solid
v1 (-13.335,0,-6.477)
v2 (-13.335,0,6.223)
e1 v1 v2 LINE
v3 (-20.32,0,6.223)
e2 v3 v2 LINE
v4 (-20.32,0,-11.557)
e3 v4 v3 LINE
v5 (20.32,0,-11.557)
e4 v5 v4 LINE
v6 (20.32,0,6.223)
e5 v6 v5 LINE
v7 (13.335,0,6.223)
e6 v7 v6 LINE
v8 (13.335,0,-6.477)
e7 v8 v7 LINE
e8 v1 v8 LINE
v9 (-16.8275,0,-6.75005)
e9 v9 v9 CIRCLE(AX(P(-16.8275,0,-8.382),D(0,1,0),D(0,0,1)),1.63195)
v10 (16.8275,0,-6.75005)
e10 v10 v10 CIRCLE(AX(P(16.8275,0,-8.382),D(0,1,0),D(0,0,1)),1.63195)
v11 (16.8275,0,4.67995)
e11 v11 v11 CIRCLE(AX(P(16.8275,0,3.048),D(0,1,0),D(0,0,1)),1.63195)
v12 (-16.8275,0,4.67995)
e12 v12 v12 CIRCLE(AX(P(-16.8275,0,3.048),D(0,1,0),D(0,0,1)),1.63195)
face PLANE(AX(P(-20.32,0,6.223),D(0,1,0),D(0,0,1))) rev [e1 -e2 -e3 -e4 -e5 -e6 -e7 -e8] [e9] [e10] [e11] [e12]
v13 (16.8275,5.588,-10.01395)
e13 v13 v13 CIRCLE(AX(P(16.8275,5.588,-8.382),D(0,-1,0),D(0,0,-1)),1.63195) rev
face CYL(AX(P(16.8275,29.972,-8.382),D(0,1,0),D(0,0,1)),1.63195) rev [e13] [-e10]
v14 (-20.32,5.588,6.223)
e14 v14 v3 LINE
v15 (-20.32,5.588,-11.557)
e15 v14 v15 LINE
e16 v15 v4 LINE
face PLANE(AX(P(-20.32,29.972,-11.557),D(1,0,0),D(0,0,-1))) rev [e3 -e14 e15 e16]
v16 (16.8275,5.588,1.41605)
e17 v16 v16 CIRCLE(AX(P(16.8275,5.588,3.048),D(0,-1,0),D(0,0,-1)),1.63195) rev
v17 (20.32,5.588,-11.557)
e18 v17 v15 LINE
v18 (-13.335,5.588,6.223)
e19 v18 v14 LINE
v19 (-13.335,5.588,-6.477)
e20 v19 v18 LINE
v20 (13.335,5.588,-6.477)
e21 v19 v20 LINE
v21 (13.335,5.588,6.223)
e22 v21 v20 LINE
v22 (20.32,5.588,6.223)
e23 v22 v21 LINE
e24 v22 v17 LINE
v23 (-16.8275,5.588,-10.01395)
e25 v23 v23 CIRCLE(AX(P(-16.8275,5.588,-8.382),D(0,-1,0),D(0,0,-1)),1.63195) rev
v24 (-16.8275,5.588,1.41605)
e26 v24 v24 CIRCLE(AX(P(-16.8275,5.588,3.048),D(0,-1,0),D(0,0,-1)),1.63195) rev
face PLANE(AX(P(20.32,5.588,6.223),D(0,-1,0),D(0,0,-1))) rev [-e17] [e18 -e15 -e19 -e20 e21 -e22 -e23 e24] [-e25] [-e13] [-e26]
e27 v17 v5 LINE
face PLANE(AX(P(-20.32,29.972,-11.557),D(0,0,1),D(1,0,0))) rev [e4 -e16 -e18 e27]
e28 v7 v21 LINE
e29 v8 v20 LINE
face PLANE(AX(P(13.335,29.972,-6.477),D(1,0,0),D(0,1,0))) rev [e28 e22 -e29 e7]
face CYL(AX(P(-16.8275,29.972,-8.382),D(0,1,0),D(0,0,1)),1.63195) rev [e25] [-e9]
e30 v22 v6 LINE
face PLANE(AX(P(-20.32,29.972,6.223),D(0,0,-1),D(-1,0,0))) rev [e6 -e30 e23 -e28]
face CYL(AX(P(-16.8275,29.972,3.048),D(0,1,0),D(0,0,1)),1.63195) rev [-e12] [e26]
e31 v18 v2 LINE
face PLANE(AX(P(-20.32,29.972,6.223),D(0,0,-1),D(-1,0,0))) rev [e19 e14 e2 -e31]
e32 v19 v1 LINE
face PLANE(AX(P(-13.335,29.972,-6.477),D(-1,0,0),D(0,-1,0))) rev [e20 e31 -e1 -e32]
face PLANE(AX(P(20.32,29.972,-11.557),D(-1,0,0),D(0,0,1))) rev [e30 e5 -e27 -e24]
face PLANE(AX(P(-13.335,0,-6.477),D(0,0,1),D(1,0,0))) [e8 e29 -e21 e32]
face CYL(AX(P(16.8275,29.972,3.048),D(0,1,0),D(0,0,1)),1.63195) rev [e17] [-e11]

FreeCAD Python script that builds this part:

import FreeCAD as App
import Part
import Sketcher
Q = App.Units.Quantity


def add_polygon(sketch, points):
    """Adds a closed chain of lines whose ends are joined by coincident constraints."""
    first, n = sketch.GeometryCount, len(points)
    for a, b in zip(points, points[1:] + points[:1]):
        sketch.addGeometry(Part.LineSegment(App.Vector(*a, 0), App.Vector(*b, 0)), False)
    for i in range(n):
        sketch.addConstraint(Sketcher.Constraint("Coincident", first + i, 2, first + (i + 1) % n, 1))

doc = App.newDocument("Part")
body = doc.addObject("PartDesign::Body", "Body")

# Sketch on XZ plane
sketch1 = doc.addObject("Sketcher::SketchObject", "Sketch")
body.addObject(sketch1)
sketch1.AttachmentSupport = (doc.XZ_Plane, [""])
sketch1.MapMode = "FlatFace"
add_polygon(sketch1, [(-20.32, -11.557), (-20.32, 6.223), (20.32, 6.223), (20.32, -11.557)])  # lines 0-3
sketch1.addConstraint([
    Sketcher.Constraint("Vertical", 0),
    Sketcher.Constraint("Horizontal", 1),
    Sketcher.Constraint("Vertical", 2),
    Sketcher.Constraint("Horizontal", 3),
    Sketcher.Constraint("DistanceX", 1, 1, 1, 2, Q("1.6 in")),
    Sketcher.Constraint("DistanceY", 0, 1, 0, 2, Q("0.7 in")),
    Sketcher.Constraint("DistanceX", 0, 2, -1, 1, Q("0.8 in")),
    Sketcher.Constraint("DistanceY", -1, 1, 0, 2, Q("0.245 in")),
])
pad1 = doc.addObject("PartDesign::Pad", "Pad")
body.addObject(pad1)
pad1.Profile = sketch1
pad1.Length = Q("1.18 in")
pad1.Reversed = True

# Sketch on XY plane
sketch2 = doc.addObject("Sketcher::SketchObject", "Sketch001")
body.addObject(sketch2)
sketch2.AttachmentSupport = (doc.XY_Plane, [""])
sketch2.MapMode = "FlatFace"
sketch2.AttachmentOffset = App.Placement(App.Vector(0, 0, 0.245 * 25.4), App.Rotation())
add_polygon(sketch2, [(-13.335, 29.972), (-13.335, 0), (13.335, 0), (13.335, 29.972)])  # lines 0-3
sketch2.addConstraint([
    Sketcher.Constraint("Vertical", 0),
    Sketcher.Constraint("Horizontal", 1),
    Sketcher.Constraint("Vertical", 2),
    Sketcher.Constraint("Horizontal", 3),
    Sketcher.Constraint("Symmetric", 0, 2, 1, 2, -1, 1),
    Sketcher.Constraint("DistanceX", 1, 1, 1, 2, Q("1.05 in")),
    Sketcher.Constraint("DistanceY", 0, 2, 0, 1, Q("1.18 in")),
])
pocket1 = doc.addObject("PartDesign::Pocket", "Pocket")
body.addObject(pocket1)
pocket1.Profile = sketch2
pocket1.Length = Q("0.5 in")

# Sketch on XY plane
sketch3 = doc.addObject("Sketcher::SketchObject", "Sketch002")
body.addObject(sketch3)
sketch3.AttachmentSupport = (doc.XY_Plane, [""])
sketch3.MapMode = "FlatFace"
sketch3.AttachmentOffset = App.Placement(App.Vector(0, 0, -0.455 * 25.4), App.Rotation())
sketch3.addGeometry(Part.Circle(App.Vector(0, 15.875, 0), App.Vector(0, 0, 1), 8.001), False)
sketch3.addConstraint([
    Sketcher.Constraint("PointOnObject", 0, 3, -2),
    Sketcher.Constraint("Diameter", 0, Q("0.63 in")),
    Sketcher.Constraint("DistanceY", -1, 1, 0, 3, Q("0.625 in")),
])
pocket2 = doc.addObject("PartDesign::Pocket", "Pocket001")
body.addObject(pocket2)
pocket2.Profile = sketch3
pocket2.Type = "ThroughAll"
pocket2.Reversed = True

# Sketch on YZ plane
sketch4 = doc.addObject("Sketcher::SketchObject", "Sketch003")
body.addObject(sketch4)
sketch4.AttachmentSupport = (doc.YZ_Plane, [""])
sketch4.MapMode = "FlatFace"
sketch4.AttachmentOffset = App.Placement(App.Vector(0, 0, -0.8 * 25.4), App.Rotation())
sketch4.addGeometry(Part.Circle(App.Vector(15.24, -2.667, 0), App.Vector(0, 0, 1), 1.1303), False)
sketch4.addConstraint([
    Sketcher.Constraint("Diameter", 0, Q("0.089 in")),
    Sketcher.Constraint("DistanceX", -1, 1, 0, 3, Q("0.6 in")),
    Sketcher.Constraint("DistanceY", 0, 3, -1, 1, Q("0.105 in")),
])
pocket3 = doc.addObject("PartDesign::Pocket", "Pocket002")
body.addObject(pocket3)
pocket3.Profile = sketch4
pocket3.Type = "ThroughAll"
pocket3.Reversed = True

# Sketch on XY plane
sketch5 = doc.addObject("Sketcher::SketchObject", "Sketch004")
body.addObject(sketch5)
sketch5.AttachmentSupport = (doc.XY_Plane, [""])
sketch5.MapMode = "FlatFace"
sketch5.AttachmentOffset = App.Placement(App.Vector(0, 0, -0.255 * 25.4), App.Rotation())
add_polygon(sketch5, [(-9.950165, 29.981521), (-9.950165, 25.404966), (9.950165, 25.404966), (9.950165, 29.981521)])  # lines 0-3
sketch5.addConstraint([
    Sketcher.Constraint("Vertical", 0),
    Sketcher.Constraint("Horizontal", 1),
    Sketcher.Constraint("Vertical", 2),
    Sketcher.Constraint("Horizontal", 3),
    Sketcher.Constraint("DistanceX", 1, 1, 1, 2, Q("19.90033 mm")),
    Sketcher.Constraint("DistanceY", 0, 2, 0, 1, Q("4.576555 mm")),
    Sketcher.Constraint("DistanceY", -1, 1, 2, 2, Q("29.981521 mm")),
    Sketcher.Constraint("DistanceX", 0, 2, -1, 1, Q("9.950165 mm")),
])
pad2 = doc.addObject("PartDesign::Pad", "Pad001")
body.addObject(pad2)
pad2.Profile = sketch5
pad2.Length = Q("0.2 in")

# Sketch on XY plane
sketch6 = doc.addObject("Sketcher::SketchObject", "Sketch005")
body.addObject(sketch6)
sketch6.AttachmentSupport = (doc.XY_Plane, [""])
sketch6.MapMode = "FlatFace"
sketch6.AttachmentOffset = App.Placement(App.Vector(0, 0, -0.455 * 25.4), App.Rotation())
sketch6.addGeometry([
    Part.Circle(App.Vector(10.16, 21.717, 0), App.Vector(0, 0, 1), 1.984375),
    Part.Circle(App.Vector(10.16, 10.033, 0), App.Vector(0, 0, 1), 1.984375),
    Part.Circle(App.Vector(-10.16, 21.717, 0), App.Vector(0, 0, 1), 1.984375),
    Part.Circle(App.Vector(-10.16, 10.033, 0), App.Vector(0, 0, 1), 1.984375),
], False)
sketch6.addConstraint([
    Sketcher.Constraint("Equal", 0, 1),
    Sketcher.Constraint("Equal", 1, 2),
    Sketcher.Constraint("Equal", 2, 3),
    Sketcher.Constraint("Symmetric", 0, 3, 2, 3, -2),
    Sketcher.Constraint("Symmetric", 1, 3, 3, 3, -2),
    Sketcher.Constraint("Vertical", 0, 3, 1, 3),
    Sketcher.Constraint("Diameter", 0, Q("0.15625 in")),
    Sketcher.Constraint("DistanceX", -1, 1, 0, 3, Q("0.4 in")),
    Sketcher.Constraint("DistanceY", 1, 3, 0, 3, Q("0.46 in")),
    Sketcher.Constraint("DistanceY", -1, 1, 0, 3, Q("0.855 in")),
])
doc.recompute()
hole = doc.addObject("PartDesign::Hole", "Hole")
body.addObject(hole)
hole.Profile = sketch6
hole.ThreadType = "None"
hole.Diameter = Q("0.15625 in")
hole.DepthType = "ThroughAll"
hole.Reversed = True

# Sketch on XZ plane
sketch7 = doc.addObject("Sketcher::SketchObject", "Sketch006")
body.addObject(sketch7)
sketch7.AttachmentSupport = (doc.XZ_Plane, [""])
sketch7.MapMode = "FlatFace"
sketch7.AttachmentOffset = App.Placement(App.Vector(0, 0, -1.18 * 25.4), App.Rotation())
sketch7.addGeometry([
    Part.Circle(App.Vector(-16.8275, 3.048, 0), App.Vector(0, 0, 1), 1.63195),
    Part.Circle(App.Vector(-16.8275, -8.382, 0), App.Vector(0, 0, 1), 1.63195),
    Part.Circle(App.Vector(16.8275, -8.382, 0), App.Vector(0, 0, 1), 1.63195),
    Part.Circle(App.Vector(16.8275, 3.048, 0), App.Vector(0, 0, 1), 1.63195),
], False)
sketch7.addConstraint([
    Sketcher.Constraint("Equal", 0, 1),
    Sketcher.Constraint("Equal", 1, 2),
    Sketcher.Constraint("Equal", 2, 3),
    Sketcher.Constraint("Symmetric", 1, 3, 2, 3, -2),
    Sketcher.Constraint("Symmetric", 0, 3, 3, 3, -2),
    Sketcher.Constraint("Vertical", 0, 3, 1, 3),
    Sketcher.Constraint("Diameter", 0, Q("0.1285 in")),
    Sketcher.Constraint("DistanceY", -1, 1, 0, 3, Q("0.12 in")),
    Sketcher.Constraint("DistanceY", 1, 3, -1, 1, Q("0.33 in")),
    Sketcher.Constraint("DistanceX", 1, 3, 2, 3, Q("1.325 in")),
])
doc.recompute()
hole2 = doc.addObject("PartDesign::Hole", "Hole001")
body.addObject(hole2)
hole2.Profile = sketch7
hole2.ThreadType = "None"
hole2.Diameter = Q("0.1285 in")
hole2.DepthType = "ThroughAll"
hole2.Reversed = True

# Sketch on YZ plane
sketch8 = doc.addObject("Sketcher::SketchObject", "Sketch007")
body.addObject(sketch8)
sketch8.AttachmentSupport = (doc.YZ_Plane, [""])
sketch8.MapMode = "FlatFace"
add_polygon(sketch8, [(0, -3.937), (29.972, -3.937), (29.972, -2.8067), (0, -2.8067)])  # lines 0-3
sketch8.addGeometry(Part.LineSegment(App.Vector(29.972, -3.937, 0), App.Vector(0, -3.937, 0)), True)  # axis
sketch8.addConstraint([
    Sketcher.Constraint("Horizontal", 0),
    Sketcher.Constraint("Vertical", 1),
    Sketcher.Constraint("Horizontal", 2),
    Sketcher.Constraint("Vertical", 3),
    Sketcher.Constraint("Horizontal", 4),
    Sketcher.Constraint("Coincident", 4, 1, 0, 2),
    Sketcher.Constraint("PointOnObject", 2, 2, -2),
    Sketcher.Constraint("PointOnObject", 4, 2, -2),
    Sketcher.Constraint("DistanceX", 0, 1, 0, 2, Q("1.18 in")),
    Sketcher.Constraint("DistanceY", 1, 1, 1, 2, Q("0.0445 in")),
    Sketcher.Constraint("DistanceY", 0, 2, -1, 1, Q("0.155 in")),
])
groove = doc.addObject("PartDesign::Groove", "Groove")
body.addObject(groove)
groove.Profile = sketch8
groove.ReferenceAxis = (sketch8, ["Axis0"])
groove.Angle = 360

# Sketch on XY plane
sketch9 = doc.addObject("Sketcher::SketchObject", "Sketch008")
body.addObject(sketch9)
sketch9.AttachmentSupport = (doc.XY_Plane, [""])
sketch9.MapMode = "FlatFace"
sketch9.AttachmentOffset = App.Placement(App.Vector(0, 0, -0.455 * 25.4), App.Rotation())
add_polygon(sketch9, [(20.32, 32.217644), (20.32, 5.588), (-20.32, 5.588), (-20.32, 32.217644)])  # lines 0-3
sketch9.addConstraint([
    Sketcher.Constraint("Vertical", 0),
    Sketcher.Constraint("Horizontal", 1),
    Sketcher.Constraint("Vertical", 2),
    Sketcher.Constraint("Horizontal", 3),
    Sketcher.Constraint("DistanceX", 1, 2, 1, 1, Q("1.6 in")),
    Sketcher.Constraint("DistanceX", -1, 1, 0, 2, Q("0.8 in")),
    Sketcher.Constraint("DistanceY", -1, 1, 0, 2, Q("0.22 in")),
    Sketcher.Constraint("DistanceY", 0, 2, 0, 1, Q("26.629644 mm")),
])
pocket4 = doc.addObject("PartDesign::Pocket", "Pocket003")
body.addObject(pocket4)
pocket4.Profile = sketch9
pocket4.Type = "ThroughAll"
pocket4.Reversed = True

doc.recompute()
